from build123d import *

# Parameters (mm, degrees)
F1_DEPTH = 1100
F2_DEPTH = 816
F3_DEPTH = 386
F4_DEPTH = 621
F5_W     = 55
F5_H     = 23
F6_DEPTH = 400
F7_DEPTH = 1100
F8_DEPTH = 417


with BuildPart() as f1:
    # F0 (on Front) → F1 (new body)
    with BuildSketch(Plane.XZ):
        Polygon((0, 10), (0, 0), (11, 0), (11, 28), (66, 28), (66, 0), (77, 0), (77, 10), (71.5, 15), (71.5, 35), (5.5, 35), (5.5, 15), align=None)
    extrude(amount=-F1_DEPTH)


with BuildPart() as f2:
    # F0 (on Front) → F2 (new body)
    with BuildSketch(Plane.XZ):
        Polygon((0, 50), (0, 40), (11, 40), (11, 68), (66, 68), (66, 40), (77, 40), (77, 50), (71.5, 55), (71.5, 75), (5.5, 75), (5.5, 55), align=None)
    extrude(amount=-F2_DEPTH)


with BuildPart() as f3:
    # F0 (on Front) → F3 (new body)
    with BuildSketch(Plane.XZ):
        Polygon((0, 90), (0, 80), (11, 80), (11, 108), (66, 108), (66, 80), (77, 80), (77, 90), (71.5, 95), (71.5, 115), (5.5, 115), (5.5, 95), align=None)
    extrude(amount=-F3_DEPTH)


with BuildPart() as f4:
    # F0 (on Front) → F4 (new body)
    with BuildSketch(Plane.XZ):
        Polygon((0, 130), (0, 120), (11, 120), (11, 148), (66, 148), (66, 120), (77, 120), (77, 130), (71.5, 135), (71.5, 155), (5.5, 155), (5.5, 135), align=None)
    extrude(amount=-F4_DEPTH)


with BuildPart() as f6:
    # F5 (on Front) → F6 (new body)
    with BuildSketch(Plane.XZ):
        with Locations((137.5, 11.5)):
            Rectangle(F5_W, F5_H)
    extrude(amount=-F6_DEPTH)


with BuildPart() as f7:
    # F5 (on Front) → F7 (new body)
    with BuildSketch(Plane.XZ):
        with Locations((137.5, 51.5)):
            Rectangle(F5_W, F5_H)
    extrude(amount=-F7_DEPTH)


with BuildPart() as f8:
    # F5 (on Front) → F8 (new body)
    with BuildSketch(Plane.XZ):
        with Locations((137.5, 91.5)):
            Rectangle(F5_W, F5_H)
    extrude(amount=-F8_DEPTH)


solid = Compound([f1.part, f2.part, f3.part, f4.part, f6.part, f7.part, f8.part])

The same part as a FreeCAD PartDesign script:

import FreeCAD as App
import Part
import Sketcher
Q = App.Units.Quantity


def add_polygon(sketch, points):
    """Adds a closed chain of lines whose ends are joined by coincident constraints."""
    first, n = sketch.GeometryCount, len(points)
    for a, b in zip(points, points[1:] + points[:1]):
        sketch.addGeometry(Part.LineSegment(App.Vector(*a, 0), App.Vector(*b, 0)), False)
    for i in range(n):
        sketch.addConstraint(Sketcher.Constraint("Coincident", first + i, 2, first + (i + 1) % n, 1))

doc = App.newDocument("Part")
body = doc.addObject("PartDesign::Body", "Body")

# Sketch on XZ plane
sketch1 = body.newObject("Sketcher::SketchObject", "Sketch")
sketch1.AttachmentSupport = (doc.getObject("XZ_Plane"), [""])
sketch1.MapMode = "FlatFace"
add_polygon(sketch1, [(0, 10), (0, 0), (11, 0), (11, 28), (66, 28), (66, 0), (77, 0), (77, 10), (72, 15), (72, 35), (6, 35), (6, 15)])  # lines 0-11
sketch1.addConstraint(Sketcher.Constraint("Vertical", 0))
sketch1.addConstraint(Sketcher.Constraint("Horizontal", 1))
sketch1.addConstraint(Sketcher.Constraint("Vertical", 2))
sketch1.addConstraint(Sketcher.Constraint("Horizontal", 3))
sketch1.addConstraint(Sketcher.Constraint("Vertical", 4))
sketch1.addConstraint(Sketcher.Constraint("Horizontal", 5))
sketch1.addConstraint(Sketcher.Constraint("Vertical", 6))
sketch1.addConstraint(Sketcher.Constraint("Vertical", 8))
sketch1.addConstraint(Sketcher.Constraint("Horizontal", 9))
sketch1.addConstraint(Sketcher.Constraint("Vertical", 10))
sketch1.addConstraint(Sketcher.Constraint("Coincident", 0, 2, -1, 1))
sketch1.addConstraint(Sketcher.Constraint("PointOnObject", 4, 2, -1))
sketch1.addConstraint(Sketcher.Constraint("Horizontal", 7, 2, 10, 2))
sketch1.addConstraint(Sketcher.Constraint("Horizontal", 6, 2, 11, 2))
sketch1.addConstraint(Sketcher.Constraint("Equal", 1, 5))
sketch1.addConstraint(Sketcher.Constraint("Equal", 7, 11))
sketch1.addConstraint(Sketcher.Constraint("DistanceX", 1, 1, 1, 2, Q("11 mm")))
sketch1.addConstraint(Sketcher.Constraint("DistanceX", 3, 1, 3, 2, Q("55 mm")))
sketch1.addConstraint(Sketcher.Constraint("DistanceX", 9, 2, 9, 1, Q("66 mm")))
sketch1.addConstraint(Sketcher.Constraint("DistanceY", 0, 2, 0, 1, Q("10 mm")))
sketch1.addConstraint(Sketcher.Constraint("DistanceY", 2, 1, 2, 2, Q("28 mm")))
sketch1.addConstraint(Sketcher.Constraint("DistanceY", 8, 1, 8, 2, Q("20 mm")))
sketch1.addConstraint(Sketcher.Constraint("DistanceY", -1, 1, 7, 2, Q("15 mm")))
pad1 = body.newObject("PartDesign::Pad", "Pad")
pad1.Profile = sketch1
pad1.Length = 1100
pad1.Reversed = True
body2 = doc.addObject("PartDesign::Body", "Body001")

# Sketch on XZ plane
sketch2 = body2.newObject("Sketcher::SketchObject", "Sketch001")
sketch2.AttachmentSupport = (doc.getObject("XZ_Plane001"), [""])
sketch2.MapMode = "FlatFace"
add_polygon(sketch2, [(0, 50), (0, 40), (11, 40), (11, 68), (66, 68), (66, 40), (77, 40), (77, 50), (72, 55), (72, 75), (6, 75), (6, 55)])  # lines 0-11
sketch2.addConstraint(Sketcher.Constraint("Vertical", 0))
sketch2.addConstraint(Sketcher.Constraint("Horizontal", 1))
sketch2.addConstraint(Sketcher.Constraint("Vertical", 2))
sketch2.addConstraint(Sketcher.Constraint("Horizontal", 3))
sketch2.addConstraint(Sketcher.Constraint("Vertical", 4))
sketch2.addConstraint(Sketcher.Constraint("Horizontal", 5))
sketch2.addConstraint(Sketcher.Constraint("Vertical", 6))
sketch2.addConstraint(Sketcher.Constraint("Vertical", 8))
sketch2.addConstraint(Sketcher.Constraint("Horizontal", 9))
sketch2.addConstraint(Sketcher.Constraint("Vertical", 10))
sketch2.addConstraint(Sketcher.Constraint("PointOnObject", 0, 2, -2))
sketch2.addConstraint(Sketcher.Constraint("Horizontal", 1, 2, 4, 2))
sketch2.addConstraint(Sketcher.Constraint("Horizontal", 7, 2, 10, 2))
sketch2.addConstraint(Sketcher.Constraint("Horizontal", 6, 2, 11, 2))
sketch2.addConstraint(Sketcher.Constraint("Equal", 1, 5))
sketch2.addConstraint(Sketcher.Constraint("Equal", 7, 11))
sketch2.addConstraint(Sketcher.Constraint("DistanceX", 1, 1, 1, 2, Q("11 mm")))
sketch2.addConstraint(Sketcher.Constraint("DistanceX", 3, 1, 3, 2, Q("55 mm")))
sketch2.addConstraint(Sketcher.Constraint("DistanceX", 9, 2, 9, 1, Q("66 mm")))
sketch2.addConstraint(Sketcher.Constraint("DistanceY", 0, 2, 0, 1, Q("10 mm")))
sketch2.addConstraint(Sketcher.Constraint("DistanceY", 2, 1, 2, 2, Q("28 mm")))
sketch2.addConstraint(Sketcher.Constraint("DistanceY", 8, 1, 8, 2, Q("20 mm")))
sketch2.addConstraint(Sketcher.Constraint("DistanceY", -1, 1, 0, 2, Q("40 mm")))
sketch2.addConstraint(Sketcher.Constraint("DistanceY", -1, 1, 7, 2, Q("55 mm")))
pad2 = body2.newObject("PartDesign::Pad", "Pad001")
pad2.Profile = sketch2
pad2.Length = 816
pad2.Reversed = True
body3 = doc.addObject("PartDesign::Body", "Body002")

# Sketch on XZ plane
sketch3 = body3.newObject("Sketcher::SketchObject", "Sketch002")
sketch3.AttachmentSupport = (doc.getObject("XZ_Plane002"), [""])
sketch3.MapMode = "FlatFace"
add_polygon(sketch3, [(0, 90), (0, 80), (11, 80), (11, 108), (66, 108), (66, 80), (77, 80), (77, 90), (72, 95), (72, 115), (6, 115), (6, 95)])  # lines 0-11
sketch3.addConstraint(Sketcher.Constraint("Vertical", 0))
sketch3.addConstraint(Sketcher.Constraint("Horizontal", 1))
sketch3.addConstraint(Sketcher.Constraint("Vertical", 2))
sketch3.addConstraint(Sketcher.Constraint("Horizontal", 3))
sketch3.addConstraint(Sketcher.Constraint("Vertical", 4))
sketch3.addConstraint(Sketcher.Constraint("Horizontal", 5))
sketch3.addConstraint(Sketcher.Constraint("Vertical", 6))
sketch3.addConstraint(Sketcher.Constraint("Vertical", 8))
sketch3.addConstraint(Sketcher.Constraint("Horizontal", 9))
sketch3.addConstraint(Sketcher.Constraint("Vertical", 10))
sketch3.addConstraint(Sketcher.Constraint("PointOnObject", 0, 2, -2))
sketch3.addConstraint(Sketcher.Constraint("Horizontal", 1, 2, 4, 2))
sketch3.addConstraint(Sketcher.Constraint("Horizontal", 7, 2, 10, 2))
sketch3.addConstraint(Sketcher.Constraint("Horizontal", 6, 2, 11, 2))
sketch3.addConstraint(Sketcher.Constraint("Equal", 1, 5))
sketch3.addConstraint(Sketcher.Constraint("Equal", 7, 11))
sketch3.addConstraint(Sketcher.Constraint("DistanceX", 1, 1, 1, 2, Q("11 mm")))
sketch3.addConstraint(Sketcher.Constraint("DistanceX", 3, 1, 3, 2, Q("55 mm")))
sketch3.addConstraint(Sketcher.Constraint("DistanceX", 9, 2, 9, 1, Q("66 mm")))
sketch3.addConstraint(Sketcher.Constraint("DistanceY", 0, 2, 0, 1, Q("10 mm")))
sketch3.addConstraint(Sketcher.Constraint("DistanceY", 2, 1, 2, 2, Q("28 mm")))
sketch3.addConstraint(Sketcher.Constraint("DistanceY", 8, 1, 8, 2, Q("20 mm")))
sketch3.addConstraint(Sketcher.Constraint("DistanceY", -1, 1, 0, 2, Q("80 mm")))
sketch3.addConstraint(Sketcher.Constraint("DistanceY", -1, 1, 7, 2, Q("95 mm")))
pad3 = body3.newObject("PartDesign::Pad", "Pad002")
pad3.Profile = sketch3
pad3.Length = 386
pad3.Reversed = True
body4 = doc.addObject("PartDesign::Body", "Body003")

# Sketch on XZ plane
sketch4 = body4.newObject("Sketcher::SketchObject", "Sketch003")
sketch4.AttachmentSupport = (doc.getObject("XZ_Plane003"), [""])
sketch4.MapMode = "FlatFace"
add_polygon(sketch4, [(0, 130), (0, 120), (11, 120), (11, 148), (66, 148), (66, 120), (77, 120), (77, 130), (72, 135), (72, 155), (6, 155), (6, 135)])  # lines 0-11
sketch4.addConstraint(Sketcher.Constraint("Vertical", 0))
sketch4.addConstraint(Sketcher.Constraint("Horizontal", 1))
sketch4.addConstraint(Sketcher.Constraint("Vertical", 2))
sketch4.addConstraint(Sketcher.Constraint("Horizontal", 3))
sketch4.addConstraint(Sketcher.Constraint("Vertical", 4))
sketch4.addConstraint(Sketcher.Constraint("Horizontal", 5))
sketch4.addConstraint(Sketcher.Constraint("Vertical", 6))
sketch4.addConstraint(Sketcher.Constraint("Vertical", 8))
sketch4.addConstraint(Sketcher.Constraint("Horizontal", 9))
sketch4.addConstraint(Sketcher.Constraint("Vertical", 10))
sketch4.addConstraint(Sketcher.Constraint("PointOnObject", 0, 2, -2))
sketch4.addConstraint(Sketcher.Constraint("Horizontal", 1, 2, 4, 2))
sketch4.addConstraint(Sketcher.Constraint("Horizontal", 7, 2, 10, 2))
sketch4.addConstraint(Sketcher.Constraint("Horizontal", 6, 2, 11, 2))
sketch4.addConstraint(Sketcher.Constraint("Equal", 1, 5))
sketch4.addConstraint(Sketcher.Constraint("Equal", 7, 11))
sketch4.addConstraint(Sketcher.Constraint("DistanceX", 1, 1, 1, 2, Q("11 mm")))
sketch4.addConstraint(Sketcher.Constraint("DistanceX", 3, 1, 3, 2, Q("55 mm")))
sketch4.addConstraint(Sketcher.Constraint("DistanceX", 9, 2, 9, 1, Q("66 mm")))
sketch4.addConstraint(Sketcher.Constraint("DistanceY", 0, 2, 0, 1, Q("10 mm")))
sketch4.addConstraint(Sketcher.Constraint("DistanceY", 2, 1, 2, 2, Q("28 mm")))
sketch4.addConstraint(Sketcher.Constraint("DistanceY", 8, 1, 8, 2, Q("20 mm")))
sketch4.addConstraint(Sketcher.Constraint("DistanceY", -1, 1, 0, 2, Q("120 mm")))
sketch4.addConstraint(Sketcher.Constraint("DistanceY", -1, 1, 7, 2, Q("135 mm")))
pad4 = body4.newObject("PartDesign::Pad", "Pad003")
pad4.Profile = sketch4
pad4.Length = 621
pad4.Reversed = True
body5 = doc.addObject("PartDesign::Body", "Body004")

# Sketch on XZ plane
sketch5 = body5.newObject("Sketcher::SketchObject", "Sketch004")
sketch5.AttachmentSupport = (doc.getObject("XZ_Plane004"), [""])
sketch5.MapMode = "FlatFace"
add_polygon(sketch5, [(110, 23), (110, 0), (165, 0), (165, 23)])  # lines 0-3
sketch5.addConstraint(Sketcher.Constraint("Vertical", 0))
sketch5.addConstraint(Sketcher.Constraint("Horizontal", 1))
sketch5.addConstraint(Sketcher.Constraint("Vertical", 2))
sketch5.addConstraint(Sketcher.Constraint("Horizontal", 3))
sketch5.addConstraint(Sketcher.Constraint("PointOnObject", 0, 2, -1))
sketch5.addConstraint(Sketcher.Constraint("DistanceX", 1, 1, 1, 2, Q("55 mm")))
sketch5.addConstraint(Sketcher.Constraint("DistanceY", 0, 2, 0, 1, Q("23 mm")))
sketch5.addConstraint(Sketcher.Constraint("DistanceX", -1, 1, 0, 2, Q("110 mm")))
pad5 = body5.newObject("PartDesign::Pad", "Pad004")
pad5.Profile = sketch5
pad5.Length = 400
pad5.Reversed = True
body6 = doc.addObject("PartDesign::Body", "Body005")

# Sketch on XZ plane
sketch6 = body6.newObject("Sketcher::SketchObject", "Sketch005")
sketch6.AttachmentSupport = (doc.getObject("XZ_Plane005"), [""])
sketch6.MapMode = "FlatFace"
add_polygon(sketch6, [(110, 63), (110, 40), (165, 40), (165, 63)])  # lines 0-3
sketch6.addConstraint(Sketcher.Constraint("Vertical", 0))
sketch6.addConstraint(Sketcher.Constraint("Horizontal", 1))
sketch6.addConstraint(Sketcher.Constraint("Vertical", 2))
sketch6.addConstraint(Sketcher.Constraint("Horizontal", 3))
sketch6.addConstraint(Sketcher.Constraint("DistanceX", 1, 1, 1, 2, Q("55 mm")))
sketch6.addConstraint(Sketcher.Constraint("DistanceY", 0, 2, 0, 1, Q("23 mm")))
sketch6.addConstraint(Sketcher.Constraint("DistanceX", -1, 1, 0, 2, Q("110 mm")))
sketch6.addConstraint(Sketcher.Constraint("DistanceY", -1, 1, 0, 2, Q("40 mm")))
pad6 = body6.newObject("PartDesign::Pad", "Pad005")
pad6.Profile = sketch6
pad6.Length = 1100
pad6.Reversed = True
body7 = doc.addObject("PartDesign::Body", "Body006")

# Sketch on XZ plane
sketch7 = body7.newObject("Sketcher::SketchObject", "Sketch006")
sketch7.AttachmentSupport = (doc.getObject("XZ_Plane006"), [""])
sketch7.MapMode = "FlatFace"
add_polygon(sketch7, [(110, 103), (110, 80), (165, 80), (165, 103)])  # lines 0-3
sketch7.addConstraint(Sketcher.Constraint("Vertical", 0))
sketch7.addConstraint(Sketcher.Constraint("Horizontal", 1))
sketch7.addConstraint(Sketcher.Constraint("Vertical", 2))
sketch7.addConstraint(Sketcher.Constraint("Horizontal", 3))
sketch7.addConstraint(Sketcher.Constraint("DistanceX", 1, 1, 1, 2, Q("55 mm")))
sketch7.addConstraint(Sketcher.Constraint("DistanceY", 0, 2, 0, 1, Q("23 mm")))
sketch7.addConstraint(Sketcher.Constraint("DistanceX", -1, 1, 0, 2, Q("110 mm")))
sketch7.addConstraint(Sketcher.Constraint("DistanceY", -1, 1, 0, 2, Q("80 mm")))
pad7 = body7.newObject("PartDesign::Pad", "Pad006")
pad7.Profile = sketch7
pad7.Length = 417
pad7.Reversed = True

doc.recompute()
